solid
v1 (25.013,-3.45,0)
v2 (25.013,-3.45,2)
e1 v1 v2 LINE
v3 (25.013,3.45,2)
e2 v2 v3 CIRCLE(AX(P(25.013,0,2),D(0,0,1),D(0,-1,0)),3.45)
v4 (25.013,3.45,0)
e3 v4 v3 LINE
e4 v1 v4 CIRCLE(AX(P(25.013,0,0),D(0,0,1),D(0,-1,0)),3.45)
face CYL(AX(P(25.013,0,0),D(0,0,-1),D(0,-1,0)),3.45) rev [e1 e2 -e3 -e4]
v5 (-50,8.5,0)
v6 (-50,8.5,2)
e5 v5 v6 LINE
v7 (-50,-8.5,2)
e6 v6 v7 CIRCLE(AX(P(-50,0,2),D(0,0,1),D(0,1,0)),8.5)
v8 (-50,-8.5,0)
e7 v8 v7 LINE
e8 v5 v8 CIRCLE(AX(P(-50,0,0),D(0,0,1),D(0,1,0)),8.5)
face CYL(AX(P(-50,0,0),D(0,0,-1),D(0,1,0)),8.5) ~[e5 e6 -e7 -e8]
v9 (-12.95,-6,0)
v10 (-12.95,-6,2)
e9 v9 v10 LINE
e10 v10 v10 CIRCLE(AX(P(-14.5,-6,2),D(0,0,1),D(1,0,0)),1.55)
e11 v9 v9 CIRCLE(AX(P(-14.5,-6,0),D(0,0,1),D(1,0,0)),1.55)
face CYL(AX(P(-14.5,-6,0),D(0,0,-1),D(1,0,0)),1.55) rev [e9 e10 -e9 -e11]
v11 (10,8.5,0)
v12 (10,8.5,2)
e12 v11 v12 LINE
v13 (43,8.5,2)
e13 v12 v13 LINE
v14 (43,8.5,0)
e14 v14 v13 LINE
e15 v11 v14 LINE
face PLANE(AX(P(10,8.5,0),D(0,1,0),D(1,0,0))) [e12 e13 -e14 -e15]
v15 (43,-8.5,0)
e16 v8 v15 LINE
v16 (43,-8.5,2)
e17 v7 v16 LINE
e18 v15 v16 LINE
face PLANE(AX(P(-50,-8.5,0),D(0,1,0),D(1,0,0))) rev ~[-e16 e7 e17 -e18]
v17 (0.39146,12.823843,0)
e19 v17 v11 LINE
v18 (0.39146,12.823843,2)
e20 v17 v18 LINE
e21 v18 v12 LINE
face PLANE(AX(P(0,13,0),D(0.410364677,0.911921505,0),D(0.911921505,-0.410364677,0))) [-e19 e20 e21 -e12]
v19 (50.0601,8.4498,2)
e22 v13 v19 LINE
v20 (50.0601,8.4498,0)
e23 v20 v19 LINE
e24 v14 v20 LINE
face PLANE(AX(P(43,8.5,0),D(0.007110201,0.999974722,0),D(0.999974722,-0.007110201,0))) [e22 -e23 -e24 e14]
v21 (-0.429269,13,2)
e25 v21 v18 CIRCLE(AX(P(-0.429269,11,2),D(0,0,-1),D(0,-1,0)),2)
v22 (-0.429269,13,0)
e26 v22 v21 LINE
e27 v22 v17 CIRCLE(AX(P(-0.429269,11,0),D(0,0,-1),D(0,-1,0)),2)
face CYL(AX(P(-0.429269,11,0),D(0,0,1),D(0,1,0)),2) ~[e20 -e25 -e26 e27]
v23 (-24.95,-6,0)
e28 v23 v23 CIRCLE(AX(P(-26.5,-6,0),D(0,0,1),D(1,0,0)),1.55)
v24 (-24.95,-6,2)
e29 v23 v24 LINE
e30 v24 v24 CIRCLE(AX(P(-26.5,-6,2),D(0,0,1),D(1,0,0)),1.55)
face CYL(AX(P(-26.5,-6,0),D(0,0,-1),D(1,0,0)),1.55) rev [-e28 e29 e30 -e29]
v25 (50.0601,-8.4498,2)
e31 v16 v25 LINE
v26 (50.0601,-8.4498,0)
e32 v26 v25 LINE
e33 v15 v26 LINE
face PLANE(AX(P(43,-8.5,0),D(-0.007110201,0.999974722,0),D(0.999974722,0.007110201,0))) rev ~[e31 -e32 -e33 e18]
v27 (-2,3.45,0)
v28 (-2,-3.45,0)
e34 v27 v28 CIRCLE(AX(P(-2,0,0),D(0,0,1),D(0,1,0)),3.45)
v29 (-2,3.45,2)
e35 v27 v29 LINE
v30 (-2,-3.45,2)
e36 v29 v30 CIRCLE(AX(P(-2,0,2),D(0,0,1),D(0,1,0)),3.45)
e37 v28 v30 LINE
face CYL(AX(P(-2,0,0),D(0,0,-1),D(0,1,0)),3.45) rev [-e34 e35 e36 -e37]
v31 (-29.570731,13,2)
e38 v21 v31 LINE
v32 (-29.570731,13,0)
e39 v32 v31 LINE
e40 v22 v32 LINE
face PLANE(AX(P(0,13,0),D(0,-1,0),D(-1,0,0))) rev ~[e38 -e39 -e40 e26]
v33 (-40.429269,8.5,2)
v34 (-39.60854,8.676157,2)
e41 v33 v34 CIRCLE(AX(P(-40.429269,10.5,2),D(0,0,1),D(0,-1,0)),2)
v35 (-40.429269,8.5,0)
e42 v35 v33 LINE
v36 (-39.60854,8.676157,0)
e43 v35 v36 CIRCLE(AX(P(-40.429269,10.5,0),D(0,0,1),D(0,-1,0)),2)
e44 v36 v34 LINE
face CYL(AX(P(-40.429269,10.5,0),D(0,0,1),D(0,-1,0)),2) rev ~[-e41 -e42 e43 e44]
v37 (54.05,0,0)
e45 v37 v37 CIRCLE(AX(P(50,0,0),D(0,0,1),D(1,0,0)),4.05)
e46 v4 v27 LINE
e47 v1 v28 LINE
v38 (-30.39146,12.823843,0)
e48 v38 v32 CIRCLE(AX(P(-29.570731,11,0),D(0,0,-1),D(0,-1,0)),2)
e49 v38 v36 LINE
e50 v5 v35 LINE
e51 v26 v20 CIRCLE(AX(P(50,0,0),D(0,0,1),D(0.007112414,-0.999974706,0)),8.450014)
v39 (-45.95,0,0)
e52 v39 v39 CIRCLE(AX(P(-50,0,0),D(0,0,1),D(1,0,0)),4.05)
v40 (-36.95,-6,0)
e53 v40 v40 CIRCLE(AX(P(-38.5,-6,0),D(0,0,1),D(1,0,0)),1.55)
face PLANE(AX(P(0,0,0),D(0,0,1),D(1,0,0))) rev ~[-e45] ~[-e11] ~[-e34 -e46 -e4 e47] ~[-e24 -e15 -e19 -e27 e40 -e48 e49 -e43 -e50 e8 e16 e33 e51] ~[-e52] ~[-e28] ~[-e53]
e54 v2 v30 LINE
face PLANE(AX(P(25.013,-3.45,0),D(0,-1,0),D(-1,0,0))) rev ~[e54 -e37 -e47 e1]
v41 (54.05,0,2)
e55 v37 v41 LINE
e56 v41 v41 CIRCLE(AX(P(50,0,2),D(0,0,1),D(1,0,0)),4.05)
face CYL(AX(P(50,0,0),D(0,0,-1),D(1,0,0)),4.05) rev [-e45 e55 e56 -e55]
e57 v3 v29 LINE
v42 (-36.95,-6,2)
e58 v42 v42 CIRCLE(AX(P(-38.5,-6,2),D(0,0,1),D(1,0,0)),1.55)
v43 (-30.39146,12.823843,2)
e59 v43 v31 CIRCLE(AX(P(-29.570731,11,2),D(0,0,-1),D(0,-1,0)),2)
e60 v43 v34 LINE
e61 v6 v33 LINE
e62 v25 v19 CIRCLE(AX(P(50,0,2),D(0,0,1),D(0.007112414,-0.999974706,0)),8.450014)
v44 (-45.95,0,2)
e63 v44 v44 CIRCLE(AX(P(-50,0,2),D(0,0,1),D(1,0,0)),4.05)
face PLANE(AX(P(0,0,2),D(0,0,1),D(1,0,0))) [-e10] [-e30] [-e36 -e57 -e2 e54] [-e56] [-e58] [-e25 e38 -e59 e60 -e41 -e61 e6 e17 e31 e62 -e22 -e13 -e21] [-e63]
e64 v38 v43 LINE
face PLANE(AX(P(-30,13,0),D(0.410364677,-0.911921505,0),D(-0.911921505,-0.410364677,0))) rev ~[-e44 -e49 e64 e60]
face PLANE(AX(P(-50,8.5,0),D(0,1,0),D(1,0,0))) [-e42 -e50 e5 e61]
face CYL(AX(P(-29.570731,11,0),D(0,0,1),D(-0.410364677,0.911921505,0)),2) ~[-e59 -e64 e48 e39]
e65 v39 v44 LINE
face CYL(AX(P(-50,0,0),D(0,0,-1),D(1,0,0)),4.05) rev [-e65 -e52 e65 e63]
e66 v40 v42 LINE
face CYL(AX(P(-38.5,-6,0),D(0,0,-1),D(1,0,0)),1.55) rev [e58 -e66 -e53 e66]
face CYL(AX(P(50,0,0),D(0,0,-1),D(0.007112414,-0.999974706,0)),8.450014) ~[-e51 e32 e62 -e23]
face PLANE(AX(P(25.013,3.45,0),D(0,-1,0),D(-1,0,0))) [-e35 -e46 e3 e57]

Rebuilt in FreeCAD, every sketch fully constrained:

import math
import FreeCAD as App
import Part
import Sketcher
Q = App.Units.Quantity


def edges_at(feature, points):
    """Names of the edges that pass closest to the given points."""
    edges = feature.Shape.Edges
    near = lambda p: min(range(len(edges)), key=lambda i: edges[i].distToShape(Part.Vertex(*p))[0])
    return sorted({f"Edge{near(p) + 1}" for p in points})

doc = App.newDocument("Part")
body = doc.addObject("PartDesign::Body", "Body")

sketch1 = body.newObject("Sketcher::SketchObject", "Sketch")
sketch1.AttachmentSupport = (doc.getObject("XY_Plane"), [""])
sketch1.MapMode = "FlatFace"
sketch1.addGeometry(Part.LineSegment(App.Vector(-40, 8.5, 0), App.Vector(-50, 8.5, 0)), False)
sketch1.addGeometry(Part.ArcOfCircle(Part.Circle(App.Vector(-50, 0, 0), App.Vector(0, 0, 1), 8.5), math.radians(90), math.radians(270)), False)
sketch1.addGeometry(Part.LineSegment(App.Vector(-50, -8.5, 0), App.Vector(43, -8.5, 0)), False)
sketch1.addGeometry(Part.LineSegment(App.Vector(43, -8.5, 0), App.Vector(50.1, -8.4, 0)), False)
sketch1.addGeometry(Part.ArcOfCircle(Part.Circle(App.Vector(50, 0, 0), App.Vector(0, 0, 1), 8.5), math.radians(-90), math.radians(90)), False)
sketch1.addGeometry(Part.LineSegment(App.Vector(50.1, 8.4, 0), App.Vector(43, 8.5, 0)), False)
sketch1.addGeometry(Part.LineSegment(App.Vector(43, 8.5, 0), App.Vector(10, 8.5, 0)), False)
sketch1.addGeometry(Part.LineSegment(App.Vector(10, 8.5, 0), App.Vector(0, 13, 0)), False)
sketch1.addGeometry(Part.LineSegment(App.Vector(0, 13, 0), App.Vector(-30, 13, 0)), False)
sketch1.addGeometry(Part.LineSegment(App.Vector(-30, 13, 0), App.Vector(-40, 8.5, 0)), False)
sketch1.addGeometry(Part.Circle(App.Vector(-38.5, -6, 0), App.Vector(0, 0, 1), 1.6), False)
sketch1.addGeometry(Part.Circle(App.Vector(-26.5, -6, 0), App.Vector(0, 0, 1), 1.6), False)
sketch1.addGeometry(Part.Circle(App.Vector(-14.5, -6, 0), App.Vector(0, 0, 1), 1.6), False)
sketch1.addGeometry(Part.Circle(App.Vector(-50, 0, 0), App.Vector(0, 0, 1), 4), False)
sketch1.addGeometry(Part.ArcOfCircle(Part.Circle(App.Vector(25, 0, 0), App.Vector(0, 0, 1), 3.5), math.radians(-90), math.radians(90)), False)
sketch1.addGeometry(Part.LineSegment(App.Vector(25, -3.5, 0), App.Vector(-2, -3.5, 0)), False)
sketch1.addGeometry(Part.ArcOfCircle(Part.Circle(App.Vector(-2, 0, 0), App.Vector(0, 0, 1), 3.5), math.radians(90), math.radians(270)), False)
sketch1.addGeometry(Part.LineSegment(App.Vector(-2, 3.5, 0), App.Vector(25, 3.5, 0)), False)
sketch1.addGeometry(Part.Circle(App.Vector(50, 0, 0), App.Vector(0, 0, 1), 4), False)
sketch1.addConstraint(Sketcher.Constraint("Tangent", 0, 2, 1, 1))
sketch1.addConstraint(Sketcher.Constraint("Tangent", 1, 2, 2, 1))
sketch1.addConstraint(Sketcher.Constraint("Coincident", 2, 2, 3, 1))
sketch1.addConstraint(Sketcher.Constraint("Tangent", 3, 2, 4, 1))
sketch1.addConstraint(Sketcher.Constraint("Tangent", 4, 2, 5, 1))
sketch1.addConstraint(Sketcher.Constraint("Coincident", 5, 2, 6, 1))
sketch1.addConstraint(Sketcher.Constraint("Coincident", 6, 2, 7, 1))
sketch1.addConstraint(Sketcher.Constraint("Coincident", 7, 2, 8, 1))
sketch1.addConstraint(Sketcher.Constraint("Coincident", 8, 2, 9, 1))
sketch1.addConstraint(Sketcher.Constraint("Coincident", 9, 2, 0, 1))
sketch1.addConstraint(Sketcher.Constraint("Tangent", 14, 1, 15, 1))
sketch1.addConstraint(Sketcher.Constraint("Tangent", 15, 2, 16, 2))
sketch1.addConstraint(Sketcher.Constraint("Tangent", 16, 1, 17, 1))
sketch1.addConstraint(Sketcher.Constraint("Tangent", 17, 2, 14, 2))
sketch1.addConstraint(Sketcher.Constraint("Horizontal", 0))
sketch1.addConstraint(Sketcher.Constraint("Horizontal", 2))
sketch1.addConstraint(Sketcher.Constraint("Horizontal", 6))
sketch1.addConstraint(Sketcher.Constraint("Horizontal", 8))
sketch1.addConstraint(Sketcher.Constraint("Horizontal", 15))
sketch1.addConstraint(Sketcher.Constraint("Horizontal", 17))
sketch1.addConstraint(Sketcher.Constraint("Coincident", 13, 3, 1, 3))
sketch1.addConstraint(Sketcher.Constraint("Coincident", 18, 3, 4, 3))
sketch1.addConstraint(Sketcher.Constraint("Equal", 10, 11))
sketch1.addConstraint(Sketcher.Constraint("Equal", 11, 12))
sketch1.addConstraint(Sketcher.Constraint("Equal", 13, 18))
sketch1.addConstraint(Sketcher.Constraint("Symmetric", 1, 3, 4, 3, -1, 1))
sketch1.addConstraint(Sketcher.Constraint("Symmetric", 3, 2, 4, 2, -1))
sketch1.addConstraint(Sketcher.Constraint("PointOnObject", 14, 3, -1))
sketch1.addConstraint(Sketcher.Constraint("PointOnObject", 7, 2, -2))
sketch1.addConstraint(Sketcher.Constraint("Horizontal", 10, 3, 11, 3))
sketch1.addConstraint(Sketcher.Constraint("Horizontal", 11, 3, 12, 3))
sketch1.addConstraint(Sketcher.Constraint("Horizontal", 0, 2, 5, 2))
sketch1.addConstraint(Sketcher.Constraint("Equal", 7, 9))
sketch1.addConstraint(Sketcher.Constraint("Diameter", 10, Q("3.1 mm")))
sketch1.addConstraint(Sketcher.Constraint("Diameter", 13, Q("8.1 mm")))
sketch1.addConstraint(Sketcher.Constraint("Radius", 1, Q("8.5 mm")))
sketch1.addConstraint(Sketcher.Constraint("DistanceX", 0, 2, 0, 1, Q("10 mm")))
sketch1.addConstraint(Sketcher.Constraint("DistanceX", 8, 2, 8, 1, Q("30 mm")))
sketch1.addConstraint(Sketcher.Constraint("Radius", 4, Q("8.45 mm")))
sketch1.addConstraint(Sketcher.Constraint("Radius", 14, Q("3.45 mm")))
sketch1.addConstraint(Sketcher.Constraint("DistanceX", -1, 1, 6, 2, Q("10 mm")))
sketch1.addConstraint(Sketcher.Constraint("DistanceY", -1, 1, 7, 2, Q("13 mm")))
sketch1.addConstraint(Sketcher.Constraint("DistanceX", 16, 3, 18, 3, Q("52 mm")))
sketch1.addConstraint(Sketcher.Constraint("DistanceX", 2, 2, 4, 3, Q("7 mm")))
sketch1.addConstraint(Sketcher.Constraint("DistanceY", 1, 2, 10, 3, Q("2.5 mm")))
sketch1.addConstraint(Sketcher.Constraint("DistanceX", 10, 3, 8, 2, Q("8.5 mm")))
sketch1.addConstraint(Sketcher.Constraint("DistanceX", 15, 2, 15, 1, Q("27.013 mm")))
sketch1.addConstraint(Sketcher.Constraint("DistanceX", 10, 3, 11, 3, Q("12 mm")))
sketch1.addConstraint(Sketcher.Constraint("DistanceX", 11, 3, 12, 3, Q("12 mm")))
pad1 = body.newObject("PartDesign::Pad", "Pad")
pad1.Profile = sketch1
pad1.Length = 2
doc.recompute()

fillet = body.newObject("PartDesign::Fillet", "Fillet")
fillet.Base = (pad1, edges_at(pad1, [
    (-40, 8.5, 1),
    (-30, 13, 1),
    (0, 13, 1),
    (43, 8.5, 1),
]))
fillet.Radius = 2

doc.recompute()
